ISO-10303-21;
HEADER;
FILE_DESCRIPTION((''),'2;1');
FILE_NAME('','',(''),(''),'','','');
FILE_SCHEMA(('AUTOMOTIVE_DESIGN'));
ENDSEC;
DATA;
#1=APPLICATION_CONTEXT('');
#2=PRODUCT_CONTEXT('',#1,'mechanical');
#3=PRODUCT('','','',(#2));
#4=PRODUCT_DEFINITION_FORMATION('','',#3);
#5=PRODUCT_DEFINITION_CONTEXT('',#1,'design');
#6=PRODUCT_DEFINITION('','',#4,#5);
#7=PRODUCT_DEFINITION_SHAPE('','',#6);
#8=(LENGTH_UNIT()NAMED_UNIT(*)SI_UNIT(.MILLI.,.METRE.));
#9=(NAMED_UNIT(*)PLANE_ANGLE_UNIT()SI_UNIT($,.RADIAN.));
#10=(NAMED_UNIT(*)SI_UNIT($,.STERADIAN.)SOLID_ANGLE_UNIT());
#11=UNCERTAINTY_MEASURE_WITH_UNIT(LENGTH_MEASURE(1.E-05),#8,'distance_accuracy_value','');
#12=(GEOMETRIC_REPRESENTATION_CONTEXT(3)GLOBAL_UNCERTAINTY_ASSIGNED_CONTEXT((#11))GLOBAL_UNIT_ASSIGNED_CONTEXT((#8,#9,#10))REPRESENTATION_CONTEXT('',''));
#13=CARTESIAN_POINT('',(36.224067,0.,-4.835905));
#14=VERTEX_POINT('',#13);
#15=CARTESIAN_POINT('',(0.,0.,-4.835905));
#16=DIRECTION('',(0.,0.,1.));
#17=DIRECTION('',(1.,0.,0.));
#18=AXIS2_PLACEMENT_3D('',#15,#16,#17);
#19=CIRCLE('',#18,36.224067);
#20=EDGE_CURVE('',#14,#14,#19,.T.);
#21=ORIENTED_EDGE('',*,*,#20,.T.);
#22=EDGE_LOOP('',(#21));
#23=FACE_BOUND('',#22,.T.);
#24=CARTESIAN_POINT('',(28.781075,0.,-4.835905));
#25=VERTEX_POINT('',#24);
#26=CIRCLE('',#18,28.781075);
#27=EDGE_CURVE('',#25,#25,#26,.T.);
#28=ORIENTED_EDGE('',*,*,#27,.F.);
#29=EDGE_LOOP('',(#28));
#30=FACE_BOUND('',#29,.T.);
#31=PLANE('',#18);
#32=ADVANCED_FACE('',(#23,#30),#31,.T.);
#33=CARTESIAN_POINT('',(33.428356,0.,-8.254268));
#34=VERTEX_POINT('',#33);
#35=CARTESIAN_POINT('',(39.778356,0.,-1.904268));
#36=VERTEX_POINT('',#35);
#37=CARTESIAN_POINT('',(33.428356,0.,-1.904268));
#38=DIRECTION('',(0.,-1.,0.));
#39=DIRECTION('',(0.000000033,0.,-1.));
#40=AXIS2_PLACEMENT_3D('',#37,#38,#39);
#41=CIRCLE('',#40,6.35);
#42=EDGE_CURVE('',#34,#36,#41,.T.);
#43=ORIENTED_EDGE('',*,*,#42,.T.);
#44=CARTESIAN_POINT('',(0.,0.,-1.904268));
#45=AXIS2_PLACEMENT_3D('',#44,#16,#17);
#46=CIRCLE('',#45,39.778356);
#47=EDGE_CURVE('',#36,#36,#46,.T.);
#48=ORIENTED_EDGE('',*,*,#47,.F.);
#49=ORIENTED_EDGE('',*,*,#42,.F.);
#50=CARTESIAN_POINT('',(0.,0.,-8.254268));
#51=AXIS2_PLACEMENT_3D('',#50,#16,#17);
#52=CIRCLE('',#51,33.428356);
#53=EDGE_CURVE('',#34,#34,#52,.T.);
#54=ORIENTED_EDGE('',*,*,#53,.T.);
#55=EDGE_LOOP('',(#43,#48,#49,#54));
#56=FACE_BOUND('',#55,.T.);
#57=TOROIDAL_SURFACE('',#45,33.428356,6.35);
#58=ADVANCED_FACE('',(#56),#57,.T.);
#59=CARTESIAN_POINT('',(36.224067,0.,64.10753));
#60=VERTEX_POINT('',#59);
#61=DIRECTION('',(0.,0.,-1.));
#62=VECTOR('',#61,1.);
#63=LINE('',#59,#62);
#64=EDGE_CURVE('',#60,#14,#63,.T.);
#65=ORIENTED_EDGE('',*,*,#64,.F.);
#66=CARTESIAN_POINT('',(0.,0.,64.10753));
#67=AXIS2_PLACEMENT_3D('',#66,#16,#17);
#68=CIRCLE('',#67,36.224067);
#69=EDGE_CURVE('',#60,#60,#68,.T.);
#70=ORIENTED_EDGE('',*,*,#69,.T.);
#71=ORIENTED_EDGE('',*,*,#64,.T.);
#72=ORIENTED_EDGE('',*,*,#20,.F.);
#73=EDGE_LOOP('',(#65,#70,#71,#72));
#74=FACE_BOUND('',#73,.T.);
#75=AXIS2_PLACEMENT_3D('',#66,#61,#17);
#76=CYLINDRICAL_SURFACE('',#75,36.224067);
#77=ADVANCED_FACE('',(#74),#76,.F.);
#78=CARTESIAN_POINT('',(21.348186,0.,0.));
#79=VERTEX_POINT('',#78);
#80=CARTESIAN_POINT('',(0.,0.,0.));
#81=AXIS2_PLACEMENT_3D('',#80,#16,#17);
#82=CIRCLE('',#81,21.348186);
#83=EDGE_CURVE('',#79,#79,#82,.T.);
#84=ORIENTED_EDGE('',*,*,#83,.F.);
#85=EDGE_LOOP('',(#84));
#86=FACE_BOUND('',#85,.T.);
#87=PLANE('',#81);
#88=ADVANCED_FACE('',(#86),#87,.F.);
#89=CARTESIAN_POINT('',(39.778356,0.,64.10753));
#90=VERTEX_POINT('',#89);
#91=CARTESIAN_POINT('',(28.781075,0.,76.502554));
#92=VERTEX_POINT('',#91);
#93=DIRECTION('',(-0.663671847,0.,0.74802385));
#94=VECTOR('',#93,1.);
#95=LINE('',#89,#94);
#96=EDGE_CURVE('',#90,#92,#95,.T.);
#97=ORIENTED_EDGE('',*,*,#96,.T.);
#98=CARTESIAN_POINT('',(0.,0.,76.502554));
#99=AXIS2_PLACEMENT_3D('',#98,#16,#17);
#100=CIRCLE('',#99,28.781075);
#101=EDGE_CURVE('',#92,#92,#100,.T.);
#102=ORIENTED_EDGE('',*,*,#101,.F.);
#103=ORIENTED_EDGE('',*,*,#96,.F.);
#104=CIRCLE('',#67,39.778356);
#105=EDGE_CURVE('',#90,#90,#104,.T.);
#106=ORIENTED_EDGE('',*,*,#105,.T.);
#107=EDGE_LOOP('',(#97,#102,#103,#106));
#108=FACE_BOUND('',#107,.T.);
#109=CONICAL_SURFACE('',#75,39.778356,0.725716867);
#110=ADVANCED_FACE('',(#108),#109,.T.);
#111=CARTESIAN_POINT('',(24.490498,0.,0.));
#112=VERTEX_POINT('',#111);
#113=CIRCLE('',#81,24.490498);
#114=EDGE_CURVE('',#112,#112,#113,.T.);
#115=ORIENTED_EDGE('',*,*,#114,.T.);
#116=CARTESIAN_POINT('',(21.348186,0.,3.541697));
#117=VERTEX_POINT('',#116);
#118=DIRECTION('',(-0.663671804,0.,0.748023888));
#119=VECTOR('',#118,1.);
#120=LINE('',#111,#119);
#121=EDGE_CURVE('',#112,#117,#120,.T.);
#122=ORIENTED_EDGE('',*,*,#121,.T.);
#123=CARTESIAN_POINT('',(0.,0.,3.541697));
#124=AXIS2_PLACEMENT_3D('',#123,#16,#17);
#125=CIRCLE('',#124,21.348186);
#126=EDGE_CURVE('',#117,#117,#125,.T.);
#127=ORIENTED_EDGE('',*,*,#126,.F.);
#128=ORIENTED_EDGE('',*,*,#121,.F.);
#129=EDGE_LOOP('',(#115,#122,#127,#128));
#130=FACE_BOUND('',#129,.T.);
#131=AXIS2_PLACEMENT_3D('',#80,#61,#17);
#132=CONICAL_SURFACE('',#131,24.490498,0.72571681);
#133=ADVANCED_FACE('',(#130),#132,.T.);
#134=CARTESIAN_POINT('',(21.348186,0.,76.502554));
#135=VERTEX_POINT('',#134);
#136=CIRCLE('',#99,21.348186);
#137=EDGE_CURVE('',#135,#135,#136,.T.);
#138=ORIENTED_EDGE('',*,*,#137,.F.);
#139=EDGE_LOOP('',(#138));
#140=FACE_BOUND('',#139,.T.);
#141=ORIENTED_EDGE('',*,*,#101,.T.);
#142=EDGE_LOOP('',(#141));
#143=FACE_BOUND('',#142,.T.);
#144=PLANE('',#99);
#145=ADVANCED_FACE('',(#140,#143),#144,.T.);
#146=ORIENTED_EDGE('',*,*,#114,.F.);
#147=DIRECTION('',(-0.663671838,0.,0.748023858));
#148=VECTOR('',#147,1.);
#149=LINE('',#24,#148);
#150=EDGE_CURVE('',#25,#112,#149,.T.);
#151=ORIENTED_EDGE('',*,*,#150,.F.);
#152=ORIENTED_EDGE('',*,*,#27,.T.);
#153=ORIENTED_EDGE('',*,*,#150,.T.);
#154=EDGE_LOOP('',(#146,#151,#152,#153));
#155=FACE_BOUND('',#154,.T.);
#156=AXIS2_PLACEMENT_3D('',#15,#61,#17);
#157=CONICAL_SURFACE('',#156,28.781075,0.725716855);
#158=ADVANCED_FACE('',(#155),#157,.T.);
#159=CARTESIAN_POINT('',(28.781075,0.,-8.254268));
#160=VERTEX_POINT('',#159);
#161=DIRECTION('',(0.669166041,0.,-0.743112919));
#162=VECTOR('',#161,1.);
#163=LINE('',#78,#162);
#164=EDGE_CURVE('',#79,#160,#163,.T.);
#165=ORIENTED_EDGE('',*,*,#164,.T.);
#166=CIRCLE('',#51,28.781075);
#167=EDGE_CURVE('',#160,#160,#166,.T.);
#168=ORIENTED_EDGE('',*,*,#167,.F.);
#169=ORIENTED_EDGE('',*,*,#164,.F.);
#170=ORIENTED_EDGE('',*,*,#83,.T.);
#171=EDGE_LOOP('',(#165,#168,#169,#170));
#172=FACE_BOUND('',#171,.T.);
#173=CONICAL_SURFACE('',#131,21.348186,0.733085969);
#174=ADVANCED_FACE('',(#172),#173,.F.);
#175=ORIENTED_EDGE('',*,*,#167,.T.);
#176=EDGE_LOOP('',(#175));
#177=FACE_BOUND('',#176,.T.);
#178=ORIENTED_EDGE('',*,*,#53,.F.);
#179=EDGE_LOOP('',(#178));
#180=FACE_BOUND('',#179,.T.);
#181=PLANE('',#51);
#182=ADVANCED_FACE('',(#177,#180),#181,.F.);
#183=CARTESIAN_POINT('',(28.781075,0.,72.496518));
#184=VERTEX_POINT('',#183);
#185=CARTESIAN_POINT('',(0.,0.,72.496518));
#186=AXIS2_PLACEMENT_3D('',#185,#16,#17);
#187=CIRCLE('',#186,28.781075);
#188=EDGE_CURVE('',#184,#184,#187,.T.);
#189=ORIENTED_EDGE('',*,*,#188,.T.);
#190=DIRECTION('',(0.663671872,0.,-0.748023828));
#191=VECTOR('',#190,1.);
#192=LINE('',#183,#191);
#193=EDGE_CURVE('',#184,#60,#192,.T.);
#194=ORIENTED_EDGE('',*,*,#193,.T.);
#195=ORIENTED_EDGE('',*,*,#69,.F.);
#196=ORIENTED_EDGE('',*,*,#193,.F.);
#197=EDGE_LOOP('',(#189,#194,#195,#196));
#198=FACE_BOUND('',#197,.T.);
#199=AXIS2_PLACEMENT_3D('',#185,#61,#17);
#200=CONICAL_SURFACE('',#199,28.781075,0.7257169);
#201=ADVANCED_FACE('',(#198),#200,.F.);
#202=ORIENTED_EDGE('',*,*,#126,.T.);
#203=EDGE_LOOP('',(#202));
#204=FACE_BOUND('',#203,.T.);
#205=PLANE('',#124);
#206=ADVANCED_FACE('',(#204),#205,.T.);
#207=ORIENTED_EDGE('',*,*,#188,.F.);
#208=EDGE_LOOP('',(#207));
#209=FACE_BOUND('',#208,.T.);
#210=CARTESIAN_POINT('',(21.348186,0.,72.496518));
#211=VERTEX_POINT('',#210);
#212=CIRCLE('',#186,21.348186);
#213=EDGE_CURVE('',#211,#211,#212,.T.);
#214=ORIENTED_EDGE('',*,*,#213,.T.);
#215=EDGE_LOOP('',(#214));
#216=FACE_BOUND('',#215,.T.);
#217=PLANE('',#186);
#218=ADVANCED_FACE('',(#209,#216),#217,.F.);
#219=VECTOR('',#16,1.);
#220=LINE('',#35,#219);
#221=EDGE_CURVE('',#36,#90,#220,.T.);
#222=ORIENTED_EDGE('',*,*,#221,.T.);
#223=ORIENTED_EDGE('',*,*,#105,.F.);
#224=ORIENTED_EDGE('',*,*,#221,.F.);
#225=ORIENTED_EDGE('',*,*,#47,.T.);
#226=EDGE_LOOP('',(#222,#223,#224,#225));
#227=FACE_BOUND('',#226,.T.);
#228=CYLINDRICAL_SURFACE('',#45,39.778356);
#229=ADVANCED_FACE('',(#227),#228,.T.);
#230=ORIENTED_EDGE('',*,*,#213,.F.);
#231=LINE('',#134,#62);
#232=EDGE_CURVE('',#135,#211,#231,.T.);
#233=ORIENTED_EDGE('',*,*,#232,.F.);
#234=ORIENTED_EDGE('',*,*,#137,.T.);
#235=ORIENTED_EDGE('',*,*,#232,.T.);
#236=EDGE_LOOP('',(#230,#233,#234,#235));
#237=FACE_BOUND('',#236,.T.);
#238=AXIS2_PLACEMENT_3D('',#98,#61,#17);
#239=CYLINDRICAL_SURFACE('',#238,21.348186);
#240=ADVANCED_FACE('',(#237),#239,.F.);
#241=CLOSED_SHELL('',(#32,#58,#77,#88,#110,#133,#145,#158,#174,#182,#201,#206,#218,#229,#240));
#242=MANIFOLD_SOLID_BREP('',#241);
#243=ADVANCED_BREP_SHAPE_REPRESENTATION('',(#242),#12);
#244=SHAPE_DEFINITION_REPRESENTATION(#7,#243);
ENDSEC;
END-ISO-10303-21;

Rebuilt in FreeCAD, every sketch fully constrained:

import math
import FreeCAD as App
import Part
import Sketcher
from FreeCAD import Vector
Q = App.Units.Quantity

doc = App.newDocument("Part")
params = doc.addObject("Spreadsheet::Sheet", "Params")
for row, (alias, value) in enumerate([
    ("sketch1_radius", "0.25 in"),
    ("revolution_angle", "360 deg"),
], start=1):
    params.set(f"A{row}", alias)
    params.set(f"B{row}", "=" + value)
    params.setAlias(f"B{row}", alias)

body = doc.addObject("PartDesign::Body", "Body")

# Sketch on XZ plane
sketch1 = doc.addObject("Sketcher::SketchObject", "Sketch")
body.addObject(sketch1)
sketch1.AttachmentSupport = (doc.XZ_Plane, [""])
sketch1.MapMode = "FlatFace"
sketch1.addGeometry([
    Part.LineSegment(Vector(0, 3.5, 0), Vector(0, 0, 0)),  # 0
    Part.LineSegment(Vector(0, 0, 0), Vector(21.3, 0, 0)),  # 1
    Part.LineSegment(Vector(21.3, 0, 0), Vector(28.8, -8.3, 0)),  # 2
    Part.LineSegment(Vector(28.8, -8.3, 0), Vector(33.4, -8.3, 0)),  # 3
    Part.ArcOfCircle(Part.Circle(Vector(33.4, -1.9, 0), Vector(0, 0, 1), 6.4), math.radians(-90), math.radians(0)),  # 4
    Part.LineSegment(Vector(39.8, -1.9, 0), Vector(39.8, 64.1, 0)),  # 5
    Part.LineSegment(Vector(39.8, 64.1, 0), Vector(28.8, 76.5, 0)),  # 6
    Part.LineSegment(Vector(28.8, 76.5, 0), Vector(21.3, 76.5, 0)),  # 7
    Part.LineSegment(Vector(21.3, 76.5, 0), Vector(21.3, 72.5, 0)),  # 8
    Part.LineSegment(Vector(21.3, 72.5, 0), Vector(28.8, 72.5, 0)),  # 9
    Part.LineSegment(Vector(28.8, 72.5, 0), Vector(36.2, 64.1, 0)),  # 10
    Part.LineSegment(Vector(36.2, 64.1, 0), Vector(36.2, -4.8, 0)),  # 11
    Part.LineSegment(Vector(36.2, -4.8, 0), Vector(28.8, -4.8, 0)),  # 12
    Part.LineSegment(Vector(28.8, -4.8, 0), Vector(24.5, 0, 0)),  # 13
    Part.LineSegment(Vector(24.5, 0, 0), Vector(21.3, 3.5, 0)),  # 14
    Part.LineSegment(Vector(21.3, 3.5, 0), Vector(0, 3.5, 0)),  # 15
], False)
sketch1.addConstraint([
    Sketcher.Constraint("Coincident", 0, 2, 1, 1),
    Sketcher.Constraint("Coincident", 1, 2, 2, 1),
    Sketcher.Constraint("Coincident", 2, 2, 3, 1),
    Sketcher.Constraint("Tangent", 3, 2, 4, 1),
    Sketcher.Constraint("Tangent", 4, 2, 5, 1),
    Sketcher.Constraint("Coincident", 5, 2, 6, 1),
    Sketcher.Constraint("Coincident", 6, 2, 7, 1),
    Sketcher.Constraint("Coincident", 7, 2, 8, 1),
    Sketcher.Constraint("Coincident", 8, 2, 9, 1),
    Sketcher.Constraint("Coincident", 9, 2, 10, 1),
    Sketcher.Constraint("Coincident", 10, 2, 11, 1),
    Sketcher.Constraint("Coincident", 11, 2, 12, 1),
    Sketcher.Constraint("Coincident", 12, 2, 13, 1),
    Sketcher.Constraint("Coincident", 13, 2, 14, 1),
    Sketcher.Constraint("Coincident", 14, 2, 15, 1),
    Sketcher.Constraint("Coincident", 15, 2, 0, 1),
    Sketcher.Constraint("Vertical", 0),
    Sketcher.Constraint("Horizontal", 1),
    Sketcher.Constraint("Horizontal", 3),
    Sketcher.Constraint("Vertical", 5),
    Sketcher.Constraint("Horizontal", 7),
    Sketcher.Constraint("Vertical", 8),
    Sketcher.Constraint("Horizontal", 9),
    Sketcher.Constraint("Vertical", 11),
    Sketcher.Constraint("Horizontal", 12),
    Sketcher.Constraint("Horizontal", 15),
    Sketcher.Constraint("Coincident", 0, 2, -1, 1),
    Sketcher.Constraint("PointOnObject", 13, 2, -1),
    Sketcher.Constraint("Parallel", 6, 10),
    Sketcher.Constraint("Parallel", 10, 13),
    Sketcher.Constraint("Parallel", 13, 14),
    Sketcher.Constraint("Horizontal", 5, 2, 10, 2),
    Sketcher.Constraint("Vertical", 2, 2, 6, 2),
    Sketcher.Constraint("Vertical", 1, 2, 7, 2),
    Sketcher.Constraint("Vertical", 6, 2, 9, 2),
    Sketcher.Constraint("Vertical", 9, 2, 12, 2),
    Sketcher.Constraint("Vertical", 8, 2, 14, 2),
    Sketcher.Constraint("Radius", 4, Q("0.25 in")),
    Sketcher.Constraint("DistanceY", 5, 1, 5, 2, Q("66.011798 mm")),
    Sketcher.Constraint("DistanceX", 3, 1, 3, 2, Q("4.647281 mm")),
    Sketcher.Constraint("DistanceX", 7, 2, 7, 1, Q("7.432889 mm")),
    Sketcher.Constraint("DistanceX", 12, 2, 12, 1, Q("7.442992 mm")),
    Sketcher.Constraint("Distance", 2, Q("11.10769 mm")),
    Sketcher.Constraint("Distance", 6, Q("16.570359 mm")),
    Sketcher.Constraint("DistanceX", 1, 1, 1, 2, Q("21.348186 mm")),
    Sketcher.Constraint("DistanceY", 0, 2, 0, 1, Q("3.541697 mm")),
])
sketch1.setExpression("Constraints[37]", "Params.sketch1_radius")
revolution = doc.addObject("PartDesign::Revolution", "Revolution")
body.addObject(revolution)
revolution.Profile = sketch1
revolution.ReferenceAxis = (sketch1, ["V_Axis"])
revolution.setExpression("Angle", "Params.revolution_angle")

doc.recompute()
